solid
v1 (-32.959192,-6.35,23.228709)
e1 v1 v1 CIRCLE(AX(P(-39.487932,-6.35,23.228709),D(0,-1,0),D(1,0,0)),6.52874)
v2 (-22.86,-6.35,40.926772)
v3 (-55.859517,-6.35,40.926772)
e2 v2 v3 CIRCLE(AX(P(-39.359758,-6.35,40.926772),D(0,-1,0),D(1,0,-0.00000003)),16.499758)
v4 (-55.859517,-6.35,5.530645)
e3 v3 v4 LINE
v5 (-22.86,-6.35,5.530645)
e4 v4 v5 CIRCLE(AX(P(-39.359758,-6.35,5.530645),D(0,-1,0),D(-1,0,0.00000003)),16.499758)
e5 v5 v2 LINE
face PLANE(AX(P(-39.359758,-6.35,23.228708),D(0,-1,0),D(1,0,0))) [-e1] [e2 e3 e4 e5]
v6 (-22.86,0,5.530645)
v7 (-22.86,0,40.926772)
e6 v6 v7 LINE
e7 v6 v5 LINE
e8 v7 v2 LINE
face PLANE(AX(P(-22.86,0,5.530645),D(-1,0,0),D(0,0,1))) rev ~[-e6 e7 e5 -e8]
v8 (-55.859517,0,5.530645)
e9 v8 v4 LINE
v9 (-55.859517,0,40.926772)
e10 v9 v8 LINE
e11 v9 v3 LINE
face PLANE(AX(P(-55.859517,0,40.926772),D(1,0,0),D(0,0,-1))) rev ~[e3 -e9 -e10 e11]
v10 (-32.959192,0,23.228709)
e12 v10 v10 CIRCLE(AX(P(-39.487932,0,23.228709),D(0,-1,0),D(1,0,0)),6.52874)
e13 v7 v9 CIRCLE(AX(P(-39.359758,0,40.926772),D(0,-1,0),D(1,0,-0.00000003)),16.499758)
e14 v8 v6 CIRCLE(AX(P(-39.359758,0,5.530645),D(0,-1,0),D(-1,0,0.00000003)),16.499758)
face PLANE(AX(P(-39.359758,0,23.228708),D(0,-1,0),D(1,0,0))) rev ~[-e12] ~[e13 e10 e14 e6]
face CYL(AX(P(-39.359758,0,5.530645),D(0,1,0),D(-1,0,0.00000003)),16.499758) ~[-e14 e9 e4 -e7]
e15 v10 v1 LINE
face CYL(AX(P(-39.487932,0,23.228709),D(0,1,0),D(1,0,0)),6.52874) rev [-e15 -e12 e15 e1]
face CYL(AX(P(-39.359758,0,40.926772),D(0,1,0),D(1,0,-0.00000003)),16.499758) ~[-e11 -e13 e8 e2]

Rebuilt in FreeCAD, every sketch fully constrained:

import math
import FreeCAD as App
import Part
import Sketcher
from FreeCAD import Vector
Q = App.Units.Quantity

doc = App.newDocument("Part")
body = doc.addObject("PartDesign::Body", "Body")

sketch1 = doc.addObject("Sketcher::SketchObject", "Sketch")
body.addObject(sketch1)
sketch1.AttachmentSupport = (doc.XZ_Plane, [""])
sketch1.MapMode = "FlatFace"
sketch1.addGeometry(Part.ArcOfCircle(Part.Circle(Vector(-39, 41, 0), Vector(0, 0, 1), 16), math.radians(0), math.radians(180)), False)
sketch1.addGeometry(Part.LineSegment(Vector(-56, 41, 0), Vector(-56, 6, 0)), False)
sketch1.addGeometry(Part.ArcOfCircle(Part.Circle(Vector(-39, 6, 0), Vector(0, 0, 1), 16), math.radians(180), math.radians(360)), False)
sketch1.addGeometry(Part.LineSegment(Vector(-23, 6, 0), Vector(-23, 41, 0)), False)
sketch1.addGeometry(Part.Circle(Vector(-39, 23, 0), Vector(0, 0, 1), 7), False)
sketch1.addConstraint(Sketcher.Constraint("Tangent", 0, 2, 1, 1))
sketch1.addConstraint(Sketcher.Constraint("Tangent", 1, 2, 2, 1))
sketch1.addConstraint(Sketcher.Constraint("Tangent", 2, 2, 3, 1))
sketch1.addConstraint(Sketcher.Constraint("Tangent", 3, 2, 0, 1))
sketch1.addConstraint(Sketcher.Constraint("Vertical", 1))
sketch1.addConstraint(Sketcher.Constraint("Vertical", 3))
sketch1.addConstraint(Sketcher.Constraint("DistanceX", 2, 2, -1, 1, Q("0.9 in")))
sketch1.addConstraint(Sketcher.Constraint("Diameter", 4, Q("13.05748 mm")))
sketch1.addConstraint(Sketcher.Constraint("Radius", 0, Q("16.499758 mm")))
sketch1.addConstraint(Sketcher.Constraint("DistanceY", 1, 2, 1, 1, Q("35.396127 mm")))
sketch1.addConstraint(Sketcher.Constraint("DistanceY", -1, 1, 4, 3, Q("23.228709 mm")))
sketch1.addConstraint(Sketcher.Constraint("DistanceX", 4, 3, 2, 2, Q("16.627932 mm")))
sketch1.addConstraint(Sketcher.Constraint("DistanceY", -1, 1, 0, 3, Q("40.926772 mm")))
pad1 = doc.addObject("PartDesign::Pad", "Pad")
body.addObject(pad1)
pad1.Profile = sketch1
pad1.Length = Q("0.25 in")

doc.recompute()
